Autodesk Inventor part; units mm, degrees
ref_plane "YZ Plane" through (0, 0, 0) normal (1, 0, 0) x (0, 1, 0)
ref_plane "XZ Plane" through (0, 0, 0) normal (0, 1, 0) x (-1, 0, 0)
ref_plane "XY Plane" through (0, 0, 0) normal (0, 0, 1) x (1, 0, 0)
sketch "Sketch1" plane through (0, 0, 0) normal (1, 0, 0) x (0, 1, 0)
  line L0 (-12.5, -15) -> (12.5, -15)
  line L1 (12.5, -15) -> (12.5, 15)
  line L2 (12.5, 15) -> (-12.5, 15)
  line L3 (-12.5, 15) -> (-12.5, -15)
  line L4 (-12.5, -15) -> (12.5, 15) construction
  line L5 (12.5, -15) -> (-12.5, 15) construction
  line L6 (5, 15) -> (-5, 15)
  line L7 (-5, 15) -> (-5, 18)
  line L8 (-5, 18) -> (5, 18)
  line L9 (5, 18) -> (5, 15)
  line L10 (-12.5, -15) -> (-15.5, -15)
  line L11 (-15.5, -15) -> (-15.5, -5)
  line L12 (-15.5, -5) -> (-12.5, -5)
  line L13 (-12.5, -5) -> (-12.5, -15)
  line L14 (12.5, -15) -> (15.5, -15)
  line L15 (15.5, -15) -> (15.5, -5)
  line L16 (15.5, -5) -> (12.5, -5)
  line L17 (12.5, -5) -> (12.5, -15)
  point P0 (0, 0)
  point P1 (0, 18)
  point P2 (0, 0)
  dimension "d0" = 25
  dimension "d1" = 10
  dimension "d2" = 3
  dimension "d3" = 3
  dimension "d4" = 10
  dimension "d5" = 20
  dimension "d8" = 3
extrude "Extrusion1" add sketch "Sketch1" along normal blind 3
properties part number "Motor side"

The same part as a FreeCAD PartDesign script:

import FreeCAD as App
import Part
import Sketcher

V = App.Vector

doc = App.newDocument("Part")
body = doc.addObject("PartDesign::Body", "Body")

# Sketch on YZ plane
sketch1 = body.newObject("Sketcher::SketchObject", "Sketch")
sketch1.AttachmentSupport = (doc.getObject("YZ_Plane"), [""])
sketch1.MapMode = "FlatFace"
sketch1.addGeometry(Part.LineSegment(V(-12.5, 15, 0), V(-12.5, -5, 0)), False)
sketch1.addGeometry(Part.LineSegment(V(-12.5, -5, 0), V(-15.5, -5, 0)), False)
sketch1.addGeometry(Part.LineSegment(V(-15.5, -5, 0), V(-15.5, -15, 0)), False)
sketch1.addGeometry(Part.LineSegment(V(-15.5, -15, 0), V(15.5, -15, 0)), False)
sketch1.addGeometry(Part.LineSegment(V(15.5, -15, 0), V(15.5, -5, 0)), False)
sketch1.addGeometry(Part.LineSegment(V(15.5, -5, 0), V(12.5, -5, 0)), False)
sketch1.addGeometry(Part.LineSegment(V(12.5, -5, 0), V(12.5, 15, 0)), False)
sketch1.addGeometry(Part.LineSegment(V(12.5, 15, 0), V(5, 15, 0)), False)
sketch1.addGeometry(Part.LineSegment(V(5, 15, 0), V(5, 18, 0)), False)
sketch1.addGeometry(Part.LineSegment(V(5, 18, 0), V(-5, 18, 0)), False)
sketch1.addGeometry(Part.LineSegment(V(-5, 18, 0), V(-5, 15, 0)), False)
sketch1.addGeometry(Part.LineSegment(V(-5, 15, 0), V(-12.5, 15, 0)), False)
sketch1.addConstraint(Sketcher.Constraint("Coincident", 0, 2, 1, 1))
sketch1.addConstraint(Sketcher.Constraint("Coincident", 1, 2, 2, 1))
sketch1.addConstraint(Sketcher.Constraint("Coincident", 2, 2, 3, 1))
sketch1.addConstraint(Sketcher.Constraint("Coincident", 3, 2, 4, 1))
sketch1.addConstraint(Sketcher.Constraint("Coincident", 4, 2, 5, 1))
sketch1.addConstraint(Sketcher.Constraint("Coincident", 5, 2, 6, 1))
sketch1.addConstraint(Sketcher.Constraint("Coincident", 6, 2, 7, 1))
sketch1.addConstraint(Sketcher.Constraint("Coincident", 7, 2, 8, 1))
sketch1.addConstraint(Sketcher.Constraint("Coincident", 8, 2, 9, 1))
sketch1.addConstraint(Sketcher.Constraint("Coincident", 9, 2, 10, 1))
sketch1.addConstraint(Sketcher.Constraint("Coincident", 10, 2, 11, 1))
sketch1.addConstraint(Sketcher.Constraint("Coincident", 11, 2, 0, 1))
sketch1.addConstraint(Sketcher.Constraint("Vertical", 0))
sketch1.addConstraint(Sketcher.Constraint("Horizontal", 1))
sketch1.addConstraint(Sketcher.Constraint("Vertical", 2))
sketch1.addConstraint(Sketcher.Constraint("Horizontal", 3))
sketch1.addConstraint(Sketcher.Constraint("Vertical", 4))
sketch1.addConstraint(Sketcher.Constraint("Horizontal", 5))
sketch1.addConstraint(Sketcher.Constraint("Vertical", 6))
sketch1.addConstraint(Sketcher.Constraint("Horizontal", 7))
sketch1.addConstraint(Sketcher.Constraint("Vertical", 8))
sketch1.addConstraint(Sketcher.Constraint("Horizontal", 9))
sketch1.addConstraint(Sketcher.Constraint("Vertical", 10))
sketch1.addConstraint(Sketcher.Constraint("Horizontal", 11))
sketch1.addConstraint(Sketcher.Constraint("Symmetric", 1, 2, 4, 2, -2))
sketch1.addConstraint(Sketcher.Constraint("Symmetric", 7, 2, 10, 2, -2))
sketch1.addConstraint(Sketcher.Constraint("Equal", 1, 5))
sketch1.addConstraint(Sketcher.Constraint("Equal", 9, 2))
sketch1.addConstraint(Sketcher.Constraint("Equal", 5, 8))
sketch1.addConstraint(Sketcher.Constraint("DistanceX", 1, 2, 1, 1, 3.0))
sketch1.addConstraint(Sketcher.Constraint("DistanceX", 9, 2, 9, 1, 10.0))
sketch1.addConstraint(Sketcher.Constraint("DistanceY", 0, 2, 0, 1, 20.0))
sketch1.addConstraint(Sketcher.Constraint("DistanceX", 0, 2, 5, 2, 25.0))
sketch1.addConstraint(Sketcher.Constraint("DistanceY", 0, 2, -1, 1, 5.0))
pad1 = body.newObject("PartDesign::Pad", "Pad")
pad1.Profile = sketch1
pad1.Length = 3

doc.recompute()
